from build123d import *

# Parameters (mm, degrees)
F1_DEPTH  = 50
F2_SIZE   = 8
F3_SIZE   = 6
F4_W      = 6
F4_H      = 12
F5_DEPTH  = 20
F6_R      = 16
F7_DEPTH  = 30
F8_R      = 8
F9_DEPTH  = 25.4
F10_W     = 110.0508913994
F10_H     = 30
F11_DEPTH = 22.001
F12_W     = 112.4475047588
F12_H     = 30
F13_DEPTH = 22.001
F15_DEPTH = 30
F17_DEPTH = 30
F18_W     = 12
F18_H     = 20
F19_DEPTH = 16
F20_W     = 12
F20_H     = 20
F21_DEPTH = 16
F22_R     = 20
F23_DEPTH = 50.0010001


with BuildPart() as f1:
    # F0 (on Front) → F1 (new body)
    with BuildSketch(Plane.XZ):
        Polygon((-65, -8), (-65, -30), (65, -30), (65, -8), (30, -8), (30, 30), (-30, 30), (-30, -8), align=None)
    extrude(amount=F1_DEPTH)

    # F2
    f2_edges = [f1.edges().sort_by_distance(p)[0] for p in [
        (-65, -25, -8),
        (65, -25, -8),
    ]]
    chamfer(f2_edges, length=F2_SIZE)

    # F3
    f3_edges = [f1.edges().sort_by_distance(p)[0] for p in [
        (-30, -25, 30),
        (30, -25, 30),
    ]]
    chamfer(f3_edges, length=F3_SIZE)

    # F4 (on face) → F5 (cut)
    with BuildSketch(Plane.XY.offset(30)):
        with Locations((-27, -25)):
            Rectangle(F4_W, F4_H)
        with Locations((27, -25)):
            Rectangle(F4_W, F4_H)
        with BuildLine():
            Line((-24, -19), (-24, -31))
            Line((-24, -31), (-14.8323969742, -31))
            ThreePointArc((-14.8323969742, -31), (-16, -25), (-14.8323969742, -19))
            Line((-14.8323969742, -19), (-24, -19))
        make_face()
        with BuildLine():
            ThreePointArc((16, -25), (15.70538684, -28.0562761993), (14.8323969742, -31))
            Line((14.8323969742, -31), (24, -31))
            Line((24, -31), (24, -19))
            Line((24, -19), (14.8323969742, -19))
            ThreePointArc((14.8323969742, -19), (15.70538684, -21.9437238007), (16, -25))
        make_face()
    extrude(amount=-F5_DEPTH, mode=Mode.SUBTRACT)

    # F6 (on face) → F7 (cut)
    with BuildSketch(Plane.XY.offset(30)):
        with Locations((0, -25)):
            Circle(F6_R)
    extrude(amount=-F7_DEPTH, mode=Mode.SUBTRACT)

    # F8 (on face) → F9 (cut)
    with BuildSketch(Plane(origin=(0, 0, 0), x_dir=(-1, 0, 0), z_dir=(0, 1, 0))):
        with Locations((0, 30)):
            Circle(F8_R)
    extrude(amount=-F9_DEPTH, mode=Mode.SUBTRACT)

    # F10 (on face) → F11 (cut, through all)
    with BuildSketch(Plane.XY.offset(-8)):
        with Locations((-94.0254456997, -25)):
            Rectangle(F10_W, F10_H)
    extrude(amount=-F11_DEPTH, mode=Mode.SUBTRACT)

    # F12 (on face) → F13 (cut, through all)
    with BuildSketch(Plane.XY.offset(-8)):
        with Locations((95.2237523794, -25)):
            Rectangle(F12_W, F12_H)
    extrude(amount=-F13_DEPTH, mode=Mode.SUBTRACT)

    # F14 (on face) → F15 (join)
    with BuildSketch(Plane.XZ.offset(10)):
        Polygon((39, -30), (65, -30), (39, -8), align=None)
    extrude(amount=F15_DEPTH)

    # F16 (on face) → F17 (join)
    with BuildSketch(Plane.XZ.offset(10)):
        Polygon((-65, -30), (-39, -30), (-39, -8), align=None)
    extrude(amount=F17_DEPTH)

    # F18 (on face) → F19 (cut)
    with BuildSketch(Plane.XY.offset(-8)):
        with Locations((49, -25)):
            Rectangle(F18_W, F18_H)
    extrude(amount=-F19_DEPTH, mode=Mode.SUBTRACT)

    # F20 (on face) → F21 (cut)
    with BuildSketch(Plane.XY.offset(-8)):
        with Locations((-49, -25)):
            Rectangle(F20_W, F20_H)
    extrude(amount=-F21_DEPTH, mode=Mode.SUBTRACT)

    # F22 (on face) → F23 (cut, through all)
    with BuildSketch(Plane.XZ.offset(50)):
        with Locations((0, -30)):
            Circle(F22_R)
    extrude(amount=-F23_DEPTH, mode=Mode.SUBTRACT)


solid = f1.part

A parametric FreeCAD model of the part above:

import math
import FreeCAD as App
import Part
import Sketcher
from FreeCAD import Vector
Q = App.Units.Quantity


def edges_at(feature, points):
    """Names of the edges that pass closest to the given points."""
    edges = feature.Shape.Edges
    near = lambda p: min(range(len(edges)), key=lambda i: edges[i].distToShape(Part.Vertex(*p))[0])
    return sorted({f"Edge{near(p) + 1}" for p in points})

doc = App.newDocument("Part")
body = doc.addObject("PartDesign::Body", "Body")

# Sketch on XZ plane
sketch1 = body.newObject("Sketcher::SketchObject", "Sketch")
sketch1.AttachmentSupport = (doc.getObject("XZ_Plane"), [""])
sketch1.MapMode = "FlatFace"
sketch1.addGeometry(Part.LineSegment(Vector(-65, -8, 0), Vector(-65, -30, 0)), False)
sketch1.addGeometry(Part.LineSegment(Vector(-65, -30, 0), Vector(65, -30, 0)), False)
sketch1.addGeometry(Part.LineSegment(Vector(65, -30, 0), Vector(65, -8, 0)), False)
sketch1.addGeometry(Part.LineSegment(Vector(65, -8, 0), Vector(30, -8, 0)), False)
sketch1.addGeometry(Part.LineSegment(Vector(30, -8, 0), Vector(30, 30, 0)), False)
sketch1.addGeometry(Part.LineSegment(Vector(30, 30, 0), Vector(-30, 30, 0)), False)
sketch1.addGeometry(Part.LineSegment(Vector(-30, 30, 0), Vector(-30, -8, 0)), False)
sketch1.addGeometry(Part.LineSegment(Vector(-30, -8, 0), Vector(-65, -8, 0)), False)
sketch1.addConstraint(Sketcher.Constraint("Coincident", 0, 2, 1, 1))
sketch1.addConstraint(Sketcher.Constraint("Coincident", 1, 2, 2, 1))
sketch1.addConstraint(Sketcher.Constraint("Coincident", 2, 2, 3, 1))
sketch1.addConstraint(Sketcher.Constraint("Coincident", 3, 2, 4, 1))
sketch1.addConstraint(Sketcher.Constraint("Coincident", 4, 2, 5, 1))
sketch1.addConstraint(Sketcher.Constraint("Coincident", 5, 2, 6, 1))
sketch1.addConstraint(Sketcher.Constraint("Coincident", 6, 2, 7, 1))
sketch1.addConstraint(Sketcher.Constraint("Coincident", 7, 2, 0, 1))
sketch1.addConstraint(Sketcher.Constraint("Vertical", 0))
sketch1.addConstraint(Sketcher.Constraint("Horizontal", 1))
sketch1.addConstraint(Sketcher.Constraint("Vertical", 2))
sketch1.addConstraint(Sketcher.Constraint("Horizontal", 3))
sketch1.addConstraint(Sketcher.Constraint("Vertical", 4))
sketch1.addConstraint(Sketcher.Constraint("Horizontal", 5))
sketch1.addConstraint(Sketcher.Constraint("Vertical", 6))
sketch1.addConstraint(Sketcher.Constraint("Horizontal", 7))
sketch1.addConstraint(Sketcher.Constraint("Symmetric", 3, 2, 6, 2, -2))
sketch1.addConstraint(Sketcher.Constraint("Equal", 3, 7))
sketch1.addConstraint(Sketcher.Constraint("DistanceX", 1, 1, 1, 2, Q("130 mm")))
sketch1.addConstraint(Sketcher.Constraint("DistanceX", 3, 2, 3, 1, Q("35 mm")))
sketch1.addConstraint(Sketcher.Constraint("DistanceY", 0, 2, 0, 1, Q("22 mm")))
sketch1.addConstraint(Sketcher.Constraint("DistanceY", 4, 1, 4, 2, Q("38 mm")))
sketch1.addConstraint(Sketcher.Constraint("DistanceY", 0, 2, -1, 1, Q("30 mm")))
pad1 = body.newObject("PartDesign::Pad", "Pad")
pad1.Profile = sketch1
pad1.Length = 50
doc.recompute()

chamfer = body.newObject("PartDesign::Chamfer", "Chamfer")
chamfer.Base = (pad1, edges_at(pad1, [(-65, -25, -8), (65, -25, -8)]))
chamfer.Size = 8
doc.recompute()

chamfer2 = body.newObject("PartDesign::Chamfer", "Chamfer001")
chamfer2.Base = (chamfer, edges_at(chamfer, [(-30, -25, 30), (30, -25, 30)]))
chamfer2.Size = 6

# Sketch on XY plane
sketch2 = body.newObject("Sketcher::SketchObject", "Sketch001")
sketch2.AttachmentSupport = (doc.getObject("XY_Plane"), [""])
sketch2.MapMode = "FlatFace"
sketch2.AttachmentOffset = App.Placement(Vector(0, 0, 30), App.Rotation())
sketch2.addGeometry(Part.LineSegment(Vector(-30, -19, 0), Vector(-30, -31, 0)), False)
sketch2.addGeometry(Part.LineSegment(Vector(-30, -31, 0), Vector(-14.832397, -31, 0)), False)
sketch2.addGeometry(Part.ArcOfCircle(Part.Circle(Vector(0, -25, 0), Vector(0, 0, 1), 16), math.radians(157.975687), math.radians(202.024313)), False)
sketch2.addGeometry(Part.LineSegment(Vector(-14.832397, -19, 0), Vector(-30, -19, 0)), False)
sketch2.addGeometry(Part.LineSegment(Vector(30, -31, 0), Vector(30, -19, 0)), False)
sketch2.addGeometry(Part.LineSegment(Vector(30, -19, 0), Vector(14.832397, -19, 0)), False)
sketch2.addGeometry(Part.ArcOfCircle(Part.Circle(Vector(0, -25, 0), Vector(0, 0, 1), 16), math.radians(0), math.radians(22.024313)), False)
sketch2.addGeometry(Part.ArcOfCircle(Part.Circle(Vector(0, -25, 0), Vector(0, 0, 1), 16), math.radians(-22.024313), math.radians(0)), False)
sketch2.addGeometry(Part.LineSegment(Vector(14.832397, -31, 0), Vector(30, -31, 0)), False)
sketch2.addConstraint(Sketcher.Constraint("Coincident", 0, 2, 1, 1))
sketch2.addConstraint(Sketcher.Constraint("Coincident", 1, 2, 2, 2))
sketch2.addConstraint(Sketcher.Constraint("Coincident", 2, 1, 3, 1))
sketch2.addConstraint(Sketcher.Constraint("Coincident", 3, 2, 0, 1))
sketch2.addConstraint(Sketcher.Constraint("Coincident", 4, 2, 5, 1))
sketch2.addConstraint(Sketcher.Constraint("Coincident", 5, 2, 6, 2))
sketch2.addConstraint(Sketcher.Constraint("Tangent", 6, 1, 7, 2))
sketch2.addConstraint(Sketcher.Constraint("Coincident", 7, 1, 8, 1))
sketch2.addConstraint(Sketcher.Constraint("Coincident", 8, 2, 4, 1))
sketch2.addConstraint(Sketcher.Constraint("Vertical", 0))
sketch2.addConstraint(Sketcher.Constraint("Horizontal", 1))
sketch2.addConstraint(Sketcher.Constraint("Horizontal", 3))
sketch2.addConstraint(Sketcher.Constraint("Vertical", 4))
sketch2.addConstraint(Sketcher.Constraint("Horizontal", 5))
sketch2.addConstraint(Sketcher.Constraint("Horizontal", 8))
sketch2.addConstraint(Sketcher.Constraint("Coincident", 6, 3, 2, 3))
sketch2.addConstraint(Sketcher.Constraint("Equal", 2, 6))
sketch2.addConstraint(Sketcher.Constraint("Equal", 6, 7))
sketch2.addConstraint(Sketcher.Constraint("Symmetric", 3, 2, 4, 2, -2))
sketch2.addConstraint(Sketcher.Constraint("Symmetric", 1, 2, 7, 1, -2))
sketch2.addConstraint(Sketcher.Constraint("Horizontal", 7, 3, 6, 1))
sketch2.addConstraint(Sketcher.Constraint("Vertical", 1, 2, 2, 1))
sketch2.addConstraint(Sketcher.Constraint("Radius", 2, Q("16 mm")))
sketch2.addConstraint(Sketcher.Constraint("DistanceY", 0, 2, 0, 1, Q("12 mm")))
sketch2.addConstraint(Sketcher.Constraint("DistanceY", 2, 3, -1, 1, Q("25 mm")))
sketch2.addConstraint(Sketcher.Constraint("DistanceX", 0, 2, -1, 1, Q("30 mm")))
pocket1 = body.newObject("PartDesign::Pocket", "Pocket")
pocket1.Profile = sketch2
pocket1.Length = 20

# Sketch on XY plane
sketch3 = body.newObject("Sketcher::SketchObject", "Sketch002")
sketch3.AttachmentSupport = (doc.getObject("XY_Plane"), [""])
sketch3.MapMode = "FlatFace"
sketch3.AttachmentOffset = App.Placement(Vector(0, 0, 30), App.Rotation())
sketch3.addGeometry(Part.Circle(Vector(0, -25, 0), Vector(0, 0, 1), 16), False)
sketch3.addConstraint(Sketcher.Constraint("PointOnObject", 0, 3, -2))
sketch3.addConstraint(Sketcher.Constraint("Diameter", 0, Q("32 mm")))
sketch3.addConstraint(Sketcher.Constraint("DistanceY", 0, 3, -1, 1, Q("25 mm")))
pocket2 = body.newObject("PartDesign::Pocket", "Pocket001")
pocket2.Profile = sketch3
pocket2.Length = 30

# Sketch on XZ plane
sketch4 = body.newObject("Sketcher::SketchObject", "Sketch003")
sketch4.AttachmentSupport = (doc.getObject("XZ_Plane"), [""])
sketch4.MapMode = "FlatFace"
sketch4.addGeometry(Part.Circle(Vector(0, 30, 0), Vector(0, 0, 1), 8), False)
sketch4.addConstraint(Sketcher.Constraint("PointOnObject", 0, 3, -2))
sketch4.addConstraint(Sketcher.Constraint("Diameter", 0, Q("16 mm")))
sketch4.addConstraint(Sketcher.Constraint("DistanceY", -1, 1, 0, 3, Q("30 mm")))
pocket3 = body.newObject("PartDesign::Pocket", "Pocket002")
pocket3.Profile = sketch4
pocket3.Length = 25.4
pocket3.Reversed = True

# Sketch on XY plane
sketch5 = body.newObject("Sketcher::SketchObject", "Sketch004")
sketch5.AttachmentSupport = (doc.getObject("XY_Plane"), [""])
sketch5.MapMode = "FlatFace"
sketch5.AttachmentOffset = App.Placement(Vector(0, 0, -8), App.Rotation())
sketch5.addGeometry(Part.LineSegment(Vector(-149.050891, -10, 0), Vector(-149.050891, -40, 0)), False)
sketch5.addGeometry(Part.LineSegment(Vector(-149.050891, -40, 0), Vector(-39, -40, 0)), False)
sketch5.addGeometry(Part.LineSegment(Vector(-39, -40, 0), Vector(-39, -10, 0)), False)
sketch5.addGeometry(Part.LineSegment(Vector(-39, -10, 0), Vector(-149.050891, -10, 0)), False)
sketch5.addConstraint(Sketcher.Constraint("Coincident", 0, 2, 1, 1))
sketch5.addConstraint(Sketcher.Constraint("Coincident", 1, 2, 2, 1))
sketch5.addConstraint(Sketcher.Constraint("Coincident", 2, 2, 3, 1))
sketch5.addConstraint(Sketcher.Constraint("Coincident", 3, 2, 0, 1))
sketch5.addConstraint(Sketcher.Constraint("Vertical", 0))
sketch5.addConstraint(Sketcher.Constraint("Horizontal", 1))
sketch5.addConstraint(Sketcher.Constraint("Vertical", 2))
sketch5.addConstraint(Sketcher.Constraint("Horizontal", 3))
sketch5.addConstraint(Sketcher.Constraint("DistanceY", 0, 2, 0, 1, Q("30 mm")))
sketch5.addConstraint(Sketcher.Constraint("DistanceY", 0, 2, -1, 1, Q("40 mm")))
sketch5.addConstraint(Sketcher.Constraint("DistanceX", 1, 2, -1, 1, Q("39 mm")))
sketch5.addConstraint(Sketcher.Constraint("DistanceX", 1, 1, 1, 2, Q("110.050891 mm")))
pocket4 = body.newObject("PartDesign::Pocket", "Pocket003")
pocket4.Profile = sketch5
pocket4.Type = "ThroughAll"

# Sketch on XY plane
sketch6 = body.newObject("Sketcher::SketchObject", "Sketch005")
sketch6.AttachmentSupport = (doc.getObject("XY_Plane"), [""])
sketch6.MapMode = "FlatFace"
sketch6.AttachmentOffset = App.Placement(Vector(0, 0, -8), App.Rotation())
sketch6.addGeometry(Part.LineSegment(Vector(39, -10, 0), Vector(39, -40, 0)), False)
sketch6.addGeometry(Part.LineSegment(Vector(39, -40, 0), Vector(151.447505, -40, 0)), False)
sketch6.addGeometry(Part.LineSegment(Vector(151.447505, -40, 0), Vector(151.447505, -10, 0)), False)
sketch6.addGeometry(Part.LineSegment(Vector(151.447505, -10, 0), Vector(39, -10, 0)), False)
sketch6.addConstraint(Sketcher.Constraint("Coincident", 0, 2, 1, 1))
sketch6.addConstraint(Sketcher.Constraint("Coincident", 1, 2, 2, 1))
sketch6.addConstraint(Sketcher.Constraint("Coincident", 2, 2, 3, 1))
sketch6.addConstraint(Sketcher.Constraint("Coincident", 3, 2, 0, 1))
sketch6.addConstraint(Sketcher.Constraint("Vertical", 0))
sketch6.addConstraint(Sketcher.Constraint("Horizontal", 1))
sketch6.addConstraint(Sketcher.Constraint("Vertical", 2))
sketch6.addConstraint(Sketcher.Constraint("Horizontal", 3))
sketch6.addConstraint(Sketcher.Constraint("DistanceY", 0, 2, 0, 1, Q("30 mm")))
sketch6.addConstraint(Sketcher.Constraint("DistanceX", -1, 1, 0, 2, Q("39 mm")))
sketch6.addConstraint(Sketcher.Constraint("DistanceY", 0, 2, -1, 1, Q("40 mm")))
sketch6.addConstraint(Sketcher.Constraint("DistanceX", 1, 1, 1, 2, Q("112.447505 mm")))
pocket5 = body.newObject("PartDesign::Pocket", "Pocket004")
pocket5.Profile = sketch6
pocket5.Type = "ThroughAll"

# Sketch on XZ plane
sketch7 = body.newObject("Sketcher::SketchObject", "Sketch006")
sketch7.AttachmentSupport = (doc.getObject("XZ_Plane"), [""])
sketch7.MapMode = "FlatFace"
sketch7.AttachmentOffset = App.Placement(Vector(0, 0, 10), App.Rotation())
sketch7.addGeometry(Part.LineSegment(Vector(39, -30, 0), Vector(65, -30, 0)), False)
sketch7.addGeometry(Part.LineSegment(Vector(65, -30, 0), Vector(39, -8, 0)), False)
sketch7.addGeometry(Part.LineSegment(Vector(39, -8, 0), Vector(39, -30, 0)), False)
sketch7.addConstraint(Sketcher.Constraint("Coincident", 0, 2, 1, 1))
sketch7.addConstraint(Sketcher.Constraint("Coincident", 1, 2, 2, 1))
sketch7.addConstraint(Sketcher.Constraint("Coincident", 2, 2, 0, 1))
sketch7.addConstraint(Sketcher.Constraint("Horizontal", 0))
sketch7.addConstraint(Sketcher.Constraint("Vertical", 2))
sketch7.addConstraint(Sketcher.Constraint("DistanceX", 0, 1, 0, 2, Q("26 mm")))
sketch7.addConstraint(Sketcher.Constraint("DistanceY", 2, 2, 2, 1, Q("22 mm")))
sketch7.addConstraint(Sketcher.Constraint("DistanceX", -1, 1, 0, 2, Q("65 mm")))
sketch7.addConstraint(Sketcher.Constraint("DistanceY", 0, 2, -1, 1, Q("30 mm")))
pad2 = body.newObject("PartDesign::Pad", "Pad001")
pad2.Profile = sketch7
pad2.Length = 30

# Sketch on XZ plane
sketch8 = body.newObject("Sketcher::SketchObject", "Sketch007")
sketch8.AttachmentSupport = (doc.getObject("XZ_Plane"), [""])
sketch8.MapMode = "FlatFace"
sketch8.AttachmentOffset = App.Placement(Vector(0, 0, 10), App.Rotation())
sketch8.addGeometry(Part.LineSegment(Vector(-65, -30, 0), Vector(-39, -30, 0)), False)
sketch8.addGeometry(Part.LineSegment(Vector(-39, -30, 0), Vector(-39, -8, 0)), False)
sketch8.addGeometry(Part.LineSegment(Vector(-39, -8, 0), Vector(-65, -30, 0)), False)
sketch8.addConstraint(Sketcher.Constraint("Coincident", 0, 2, 1, 1))
sketch8.addConstraint(Sketcher.Constraint("Coincident", 1, 2, 2, 1))
sketch8.addConstraint(Sketcher.Constraint("Coincident", 2, 2, 0, 1))
sketch8.addConstraint(Sketcher.Constraint("Horizontal", 0))
sketch8.addConstraint(Sketcher.Constraint("Vertical", 1))
sketch8.addConstraint(Sketcher.Constraint("DistanceX", 0, 1, 0, 2, Q("26 mm")))
sketch8.addConstraint(Sketcher.Constraint("DistanceY", 1, 1, 1, 2, Q("22 mm")))
sketch8.addConstraint(Sketcher.Constraint("DistanceX", 0, 2, -1, 1, Q("39 mm")))
sketch8.addConstraint(Sketcher.Constraint("DistanceY", 0, 2, -1, 1, Q("30 mm")))
pad3 = body.newObject("PartDesign::Pad", "Pad002")
pad3.Profile = sketch8
pad3.Length = 30

# Sketch on XY plane
sketch9 = body.newObject("Sketcher::SketchObject", "Sketch008")
sketch9.AttachmentSupport = (doc.getObject("XY_Plane"), [""])
sketch9.MapMode = "FlatFace"
sketch9.AttachmentOffset = App.Placement(Vector(0, 0, -8), App.Rotation())
sketch9.addGeometry(Part.LineSegment(Vector(43, -15, 0), Vector(43, -35, 0)), False)
sketch9.addGeometry(Part.LineSegment(Vector(43, -35, 0), Vector(55, -35, 0)), False)
sketch9.addGeometry(Part.LineSegment(Vector(55, -35, 0), Vector(55, -15, 0)), False)
sketch9.addGeometry(Part.LineSegment(Vector(55, -15, 0), Vector(43, -15, 0)), False)
sketch9.addConstraint(Sketcher.Constraint("Coincident", 0, 2, 1, 1))
sketch9.addConstraint(Sketcher.Constraint("Coincident", 1, 2, 2, 1))
sketch9.addConstraint(Sketcher.Constraint("Coincident", 2, 2, 3, 1))
sketch9.addConstraint(Sketcher.Constraint("Coincident", 3, 2, 0, 1))
sketch9.addConstraint(Sketcher.Constraint("Vertical", 0))
sketch9.addConstraint(Sketcher.Constraint("Horizontal", 1))
sketch9.addConstraint(Sketcher.Constraint("Vertical", 2))
sketch9.addConstraint(Sketcher.Constraint("Horizontal", 3))
sketch9.addConstraint(Sketcher.Constraint("DistanceX", 1, 1, 1, 2, Q("12 mm")))
sketch9.addConstraint(Sketcher.Constraint("DistanceY", 0, 2, 0, 1, Q("20 mm")))
sketch9.addConstraint(Sketcher.Constraint("DistanceX", -1, 1, 0, 2, Q("43 mm")))
sketch9.addConstraint(Sketcher.Constraint("DistanceY", 0, 2, -1, 1, Q("35 mm")))
pocket6 = body.newObject("PartDesign::Pocket", "Pocket005")
pocket6.Profile = sketch9
pocket6.Length = 16

# Sketch on XY plane
sketch10 = body.newObject("Sketcher::SketchObject", "Sketch009")
sketch10.AttachmentSupport = (doc.getObject("XY_Plane"), [""])
sketch10.MapMode = "FlatFace"
sketch10.AttachmentOffset = App.Placement(Vector(0, 0, -8), App.Rotation())
sketch10.addGeometry(Part.LineSegment(Vector(-55, -15, 0), Vector(-55, -35, 0)), False)
sketch10.addGeometry(Part.LineSegment(Vector(-55, -35, 0), Vector(-43, -35, 0)), False)
sketch10.addGeometry(Part.LineSegment(Vector(-43, -35, 0), Vector(-43, -15, 0)), False)
sketch10.addGeometry(Part.LineSegment(Vector(-43, -15, 0), Vector(-55, -15, 0)), False)
sketch10.addConstraint(Sketcher.Constraint("Coincident", 0, 2, 1, 1))
sketch10.addConstraint(Sketcher.Constraint("Coincident", 1, 2, 2, 1))
sketch10.addConstraint(Sketcher.Constraint("Coincident", 2, 2, 3, 1))
sketch10.addConstraint(Sketcher.Constraint("Coincident", 3, 2, 0, 1))
sketch10.addConstraint(Sketcher.Constraint("Vertical", 0))
sketch10.addConstraint(Sketcher.Constraint("Horizontal", 1))
sketch10.addConstraint(Sketcher.Constraint("Vertical", 2))
sketch10.addConstraint(Sketcher.Constraint("Horizontal", 3))
sketch10.addConstraint(Sketcher.Constraint("DistanceX", 1, 1, 1, 2, Q("12 mm")))
sketch10.addConstraint(Sketcher.Constraint("DistanceY", 0, 2, 0, 1, Q("20 mm")))
sketch10.addConstraint(Sketcher.Constraint("DistanceX", 0, 2, -1, 1, Q("55 mm")))
sketch10.addConstraint(Sketcher.Constraint("DistanceY", 0, 2, -1, 1, Q("35 mm")))
pocket7 = body.newObject("PartDesign::Pocket", "Pocket006")
pocket7.Profile = sketch10
pocket7.Length = 16

# Sketch on XZ plane
sketch11 = body.newObject("Sketcher::SketchObject", "Sketch010")
sketch11.AttachmentSupport = (doc.getObject("XZ_Plane"), [""])
sketch11.MapMode = "FlatFace"
sketch11.AttachmentOffset = App.Placement(Vector(0, 0, 50), App.Rotation())
sketch11.addGeometry(Part.Circle(Vector(0, -30, 0), Vector(0, 0, 1), 20), False)
sketch11.addConstraint(Sketcher.Constraint("PointOnObject", 0, 3, -2))
sketch11.addConstraint(Sketcher.Constraint("Diameter", 0, Q("40 mm")))
sketch11.addConstraint(Sketcher.Constraint("DistanceY", 0, 3, -1, 1, Q("30 mm")))
pocket8 = body.newObject("PartDesign::Pocket", "Pocket007")
pocket8.Profile = sketch11
pocket8.Type = "ThroughAll"

doc.recompute()
